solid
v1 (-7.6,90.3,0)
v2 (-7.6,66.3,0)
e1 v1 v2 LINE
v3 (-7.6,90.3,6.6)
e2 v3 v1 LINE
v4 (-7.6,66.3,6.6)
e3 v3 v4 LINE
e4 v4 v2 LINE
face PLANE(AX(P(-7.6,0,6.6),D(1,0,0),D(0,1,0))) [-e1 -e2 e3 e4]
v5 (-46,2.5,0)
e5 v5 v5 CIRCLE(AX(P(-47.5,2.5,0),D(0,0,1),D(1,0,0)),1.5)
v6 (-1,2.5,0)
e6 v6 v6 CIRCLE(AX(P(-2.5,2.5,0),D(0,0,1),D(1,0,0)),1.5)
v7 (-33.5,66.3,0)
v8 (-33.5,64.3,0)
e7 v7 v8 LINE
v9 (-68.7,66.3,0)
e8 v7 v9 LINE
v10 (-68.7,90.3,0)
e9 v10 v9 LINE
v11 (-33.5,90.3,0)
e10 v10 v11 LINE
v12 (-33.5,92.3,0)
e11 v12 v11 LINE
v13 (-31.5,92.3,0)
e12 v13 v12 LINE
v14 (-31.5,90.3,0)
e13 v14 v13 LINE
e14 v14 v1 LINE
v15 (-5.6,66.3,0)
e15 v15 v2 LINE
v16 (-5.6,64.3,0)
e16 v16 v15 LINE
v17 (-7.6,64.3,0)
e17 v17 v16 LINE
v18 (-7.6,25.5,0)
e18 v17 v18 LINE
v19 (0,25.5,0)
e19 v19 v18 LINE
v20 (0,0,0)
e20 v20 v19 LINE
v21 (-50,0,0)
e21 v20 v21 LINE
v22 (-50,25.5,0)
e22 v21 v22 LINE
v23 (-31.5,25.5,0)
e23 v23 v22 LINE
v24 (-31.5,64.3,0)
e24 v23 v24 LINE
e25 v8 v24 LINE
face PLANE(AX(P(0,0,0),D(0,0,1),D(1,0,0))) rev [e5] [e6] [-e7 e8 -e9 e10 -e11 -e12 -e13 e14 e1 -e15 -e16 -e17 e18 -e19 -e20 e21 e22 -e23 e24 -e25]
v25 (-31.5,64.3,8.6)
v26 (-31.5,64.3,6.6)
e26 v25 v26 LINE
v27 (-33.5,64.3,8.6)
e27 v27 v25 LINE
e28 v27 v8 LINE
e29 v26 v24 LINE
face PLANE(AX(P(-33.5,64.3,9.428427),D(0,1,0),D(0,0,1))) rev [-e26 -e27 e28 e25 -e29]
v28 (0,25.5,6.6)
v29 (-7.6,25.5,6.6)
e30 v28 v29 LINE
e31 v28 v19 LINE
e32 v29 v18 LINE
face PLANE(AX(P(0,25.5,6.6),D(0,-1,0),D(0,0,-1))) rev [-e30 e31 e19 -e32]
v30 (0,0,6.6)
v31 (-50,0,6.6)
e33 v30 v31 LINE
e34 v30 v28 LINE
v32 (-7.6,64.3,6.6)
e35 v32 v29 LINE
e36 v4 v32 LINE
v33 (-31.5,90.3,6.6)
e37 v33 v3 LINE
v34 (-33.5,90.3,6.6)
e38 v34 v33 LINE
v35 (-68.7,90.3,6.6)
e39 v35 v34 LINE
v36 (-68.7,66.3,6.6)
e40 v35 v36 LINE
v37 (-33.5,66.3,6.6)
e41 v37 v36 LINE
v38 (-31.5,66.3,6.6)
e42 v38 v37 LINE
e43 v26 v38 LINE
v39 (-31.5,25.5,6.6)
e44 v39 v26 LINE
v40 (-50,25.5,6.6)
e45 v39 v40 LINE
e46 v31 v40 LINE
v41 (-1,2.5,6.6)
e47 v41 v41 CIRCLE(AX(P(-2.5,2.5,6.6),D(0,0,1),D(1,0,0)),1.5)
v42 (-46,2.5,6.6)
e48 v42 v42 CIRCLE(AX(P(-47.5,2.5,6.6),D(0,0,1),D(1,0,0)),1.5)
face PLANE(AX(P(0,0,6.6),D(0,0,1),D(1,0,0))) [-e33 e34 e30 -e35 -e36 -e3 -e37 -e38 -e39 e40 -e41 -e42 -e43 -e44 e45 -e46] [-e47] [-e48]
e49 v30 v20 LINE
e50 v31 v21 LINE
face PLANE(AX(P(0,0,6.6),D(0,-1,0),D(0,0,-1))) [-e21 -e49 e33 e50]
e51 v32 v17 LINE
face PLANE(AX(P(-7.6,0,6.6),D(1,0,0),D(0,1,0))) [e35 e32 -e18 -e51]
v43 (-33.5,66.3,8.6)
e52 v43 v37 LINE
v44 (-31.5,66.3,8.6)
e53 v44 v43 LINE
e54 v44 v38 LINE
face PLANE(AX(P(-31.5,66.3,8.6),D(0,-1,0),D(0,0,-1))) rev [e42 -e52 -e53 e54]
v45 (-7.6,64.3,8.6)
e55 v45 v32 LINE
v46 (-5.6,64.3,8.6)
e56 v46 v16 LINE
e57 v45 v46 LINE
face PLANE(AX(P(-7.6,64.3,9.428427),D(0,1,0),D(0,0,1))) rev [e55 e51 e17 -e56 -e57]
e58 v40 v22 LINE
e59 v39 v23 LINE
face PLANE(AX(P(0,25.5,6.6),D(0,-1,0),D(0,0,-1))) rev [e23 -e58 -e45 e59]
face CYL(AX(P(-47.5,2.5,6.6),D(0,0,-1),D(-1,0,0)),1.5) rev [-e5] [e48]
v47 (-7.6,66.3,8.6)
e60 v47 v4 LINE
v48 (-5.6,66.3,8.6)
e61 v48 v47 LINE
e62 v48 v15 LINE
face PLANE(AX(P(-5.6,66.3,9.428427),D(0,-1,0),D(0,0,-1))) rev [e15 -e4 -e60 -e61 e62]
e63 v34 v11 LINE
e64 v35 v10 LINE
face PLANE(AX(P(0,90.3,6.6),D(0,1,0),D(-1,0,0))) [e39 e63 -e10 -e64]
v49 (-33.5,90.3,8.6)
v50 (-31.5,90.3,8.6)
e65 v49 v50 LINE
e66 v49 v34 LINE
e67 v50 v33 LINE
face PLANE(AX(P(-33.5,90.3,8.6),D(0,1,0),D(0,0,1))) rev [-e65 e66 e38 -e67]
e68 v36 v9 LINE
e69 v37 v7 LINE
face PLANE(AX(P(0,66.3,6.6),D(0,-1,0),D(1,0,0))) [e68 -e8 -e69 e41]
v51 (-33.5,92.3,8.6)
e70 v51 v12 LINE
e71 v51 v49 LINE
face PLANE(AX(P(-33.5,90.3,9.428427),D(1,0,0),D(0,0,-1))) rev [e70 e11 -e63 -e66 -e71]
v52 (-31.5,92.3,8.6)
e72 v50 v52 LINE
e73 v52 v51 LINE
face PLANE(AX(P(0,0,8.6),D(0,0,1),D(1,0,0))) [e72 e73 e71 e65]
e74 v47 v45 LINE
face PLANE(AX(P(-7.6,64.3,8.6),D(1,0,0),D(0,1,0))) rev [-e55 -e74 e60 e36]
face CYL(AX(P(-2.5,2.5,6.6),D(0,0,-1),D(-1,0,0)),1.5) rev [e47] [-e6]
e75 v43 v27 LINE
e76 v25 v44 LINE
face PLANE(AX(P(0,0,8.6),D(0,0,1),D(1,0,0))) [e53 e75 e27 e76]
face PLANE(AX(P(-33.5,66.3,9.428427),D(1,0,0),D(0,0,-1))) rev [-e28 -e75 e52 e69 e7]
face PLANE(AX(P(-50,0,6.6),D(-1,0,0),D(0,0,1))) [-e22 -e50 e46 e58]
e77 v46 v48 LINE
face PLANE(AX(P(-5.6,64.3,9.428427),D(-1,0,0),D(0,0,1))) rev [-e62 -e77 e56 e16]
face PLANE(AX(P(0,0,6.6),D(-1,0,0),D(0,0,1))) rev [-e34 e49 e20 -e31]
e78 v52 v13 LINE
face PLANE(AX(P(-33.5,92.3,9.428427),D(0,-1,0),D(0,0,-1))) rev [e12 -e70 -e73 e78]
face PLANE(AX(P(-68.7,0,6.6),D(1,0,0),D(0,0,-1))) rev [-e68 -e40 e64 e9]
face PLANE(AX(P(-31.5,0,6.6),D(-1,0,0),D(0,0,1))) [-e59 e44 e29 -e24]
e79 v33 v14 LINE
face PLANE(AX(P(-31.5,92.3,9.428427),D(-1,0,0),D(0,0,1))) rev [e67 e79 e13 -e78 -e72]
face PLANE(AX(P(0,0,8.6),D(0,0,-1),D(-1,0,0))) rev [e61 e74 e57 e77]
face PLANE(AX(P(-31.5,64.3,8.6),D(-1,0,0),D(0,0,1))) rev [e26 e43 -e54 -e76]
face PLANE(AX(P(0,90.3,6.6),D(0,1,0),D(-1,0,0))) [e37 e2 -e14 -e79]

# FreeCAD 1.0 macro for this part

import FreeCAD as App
import Part
import Sketcher

V = App.Vector
Q = App.Units.Quantity


def add_polygon(sketch, points):
    """Adds a closed chain of lines whose ends are joined by coincident constraints."""
    first, n = sketch.GeometryCount, len(points)
    for a, b in zip(points, points[1:] + points[:1]):
        sketch.addGeometry(Part.LineSegment(App.Vector(*a, 0), App.Vector(*b, 0)), False)
    for i in range(n):
        sketch.addConstraint(Sketcher.Constraint("Coincident", first + i, 2, first + (i + 1) % n, 1))

doc = App.newDocument("Part")
body = doc.addObject("PartDesign::Body", "Body")

# Sketch on XY plane
sketch1 = doc.addObject("Sketcher::SketchObject", "Sketch")
body.addObject(sketch1)
sketch1.AttachmentSupport = (doc.XY_Plane, [""])
sketch1.MapMode = "FlatFace"
add_polygon(sketch1, [(-50, 0), (0, 0), (0, 25.5), (-7.6, 25.5), (-7.6, 90.3), (-68.7, 90.3), (-68.7, 66.3), (-31.5, 66.3), (-31.5, 25.5), (-50, 25.5)])  # lines 0-9
sketch1.addGeometry(Part.Circle(V(-2.5, 2.5, 0), V(0, 0, 1), 1.5), False)  # 10
sketch1.addGeometry(Part.Circle(V(-47.5, 2.5, 0), V(0, 0, 1), 1.5), False)  # 11
sketch1.addConstraint(Sketcher.Constraint("Horizontal", 0))
sketch1.addConstraint(Sketcher.Constraint("Vertical", 1))
sketch1.addConstraint(Sketcher.Constraint("Horizontal", 2))
sketch1.addConstraint(Sketcher.Constraint("Vertical", 3))
sketch1.addConstraint(Sketcher.Constraint("Horizontal", 4))
sketch1.addConstraint(Sketcher.Constraint("Vertical", 5))
sketch1.addConstraint(Sketcher.Constraint("Horizontal", 6))
sketch1.addConstraint(Sketcher.Constraint("Vertical", 7))
sketch1.addConstraint(Sketcher.Constraint("Horizontal", 8))
sketch1.addConstraint(Sketcher.Constraint("Vertical", 9))
sketch1.addConstraint(Sketcher.Constraint("Coincident", 0, 2, -1, 1))
sketch1.addConstraint(Sketcher.Constraint("Equal", 10, 11))
sketch1.addConstraint(Sketcher.Constraint("Horizontal", 10, 3, 11, 3))
sketch1.addConstraint(Sketcher.Constraint("Horizontal", 2, 2, 7, 2))
sketch1.addConstraint(Sketcher.Constraint("Diameter", 10, Q("3 mm")))
sketch1.addConstraint(Sketcher.Constraint("DistanceX", 0, 1, 0, 2, Q("50 mm")))
sketch1.addConstraint(Sketcher.Constraint("DistanceY", 5, 2, 5, 1, Q("24 mm")))
sketch1.addConstraint(Sketcher.Constraint("DistanceX", 2, 2, 2, 1, Q("7.6 mm")))
sketch1.addConstraint(Sketcher.Constraint("DistanceX", 4, 2, 4, 1, Q("61.1 mm")))
sketch1.addConstraint(Sketcher.Constraint("DistanceX", 6, 1, 6, 2, Q("37.2 mm")))
sketch1.addConstraint(Sketcher.Constraint("DistanceY", 1, 1, 1, 2, Q("25.5 mm")))
sketch1.addConstraint(Sketcher.Constraint("DistanceY", 3, 1, 3, 2, Q("64.8 mm")))
sketch1.addConstraint(Sketcher.Constraint("DistanceX", 11, 3, 10, 3, Q("45 mm")))
sketch1.addConstraint(Sketcher.Constraint("DistanceY", 10, 3, 1, 2, Q("23 mm")))
sketch1.addConstraint(Sketcher.Constraint("DistanceX", 11, 3, 7, 2, Q("16 mm")))
pad1 = doc.addObject("PartDesign::Pad", "Pad")
body.addObject(pad1)
pad1.Profile = sketch1
pad1.Length = 6.6

# Sketch on XY plane
sketch2 = doc.addObject("Sketcher::SketchObject", "Sketch001")
body.addObject(sketch2)
sketch2.AttachmentSupport = (doc.XY_Plane, [""])
sketch2.MapMode = "FlatFace"
add_polygon(sketch2, [(-33.5, 64.3), (-31.5, 64.3), (-31.5, 66.3), (-33.5, 66.3)])  # lines 0-3
add_polygon(sketch2, [(-33.5, 90.3), (-31.5, 90.3), (-31.5, 92.3), (-33.5, 92.3)])  # lines 4-7
add_polygon(sketch2, [(-7.6, 64.3), (-5.6, 64.3), (-5.6, 66.3), (-7.6, 66.3)])  # lines 8-11
sketch2.addConstraint(Sketcher.Constraint("Horizontal", 0))
sketch2.addConstraint(Sketcher.Constraint("Vertical", 1))
sketch2.addConstraint(Sketcher.Constraint("Horizontal", 2))
sketch2.addConstraint(Sketcher.Constraint("Vertical", 3))
sketch2.addConstraint(Sketcher.Constraint("Horizontal", 4))
sketch2.addConstraint(Sketcher.Constraint("Vertical", 5))
sketch2.addConstraint(Sketcher.Constraint("Horizontal", 6))
sketch2.addConstraint(Sketcher.Constraint("Vertical", 7))
sketch2.addConstraint(Sketcher.Constraint("Horizontal", 8))
sketch2.addConstraint(Sketcher.Constraint("Vertical", 9))
sketch2.addConstraint(Sketcher.Constraint("Horizontal", 10))
sketch2.addConstraint(Sketcher.Constraint("Vertical", 11))
sketch2.addConstraint(Sketcher.Constraint("Horizontal", 3, 2, 8, 2))
sketch2.addConstraint(Sketcher.Constraint("Horizontal", 2, 2, 9, 2))
sketch2.addConstraint(Sketcher.Constraint("Vertical", 1, 2, 4, 2))
sketch2.addConstraint(Sketcher.Constraint("Vertical", 3, 2, 6, 2))
sketch2.addConstraint(Sketcher.Constraint("Equal", 6, 8))
sketch2.addConstraint(Sketcher.Constraint("Equal", 10, 1))
sketch2.addConstraint(Sketcher.Constraint("Equal", 3, 5))
sketch2.addConstraint(Sketcher.Constraint("DistanceX", 0, 1, 0, 2, Q("2 mm")))
sketch2.addConstraint(Sketcher.Constraint("DistanceY", 1, 2, 4, 2, Q("24 mm")))
sketch2.addConstraint(Sketcher.Constraint("DistanceX", 0, 2, -1, 1, Q("31.5 mm")))
sketch2.addConstraint(Sketcher.Constraint("DistanceY", -1, 1, 0, 2, Q("64.3 mm")))
sketch2.addConstraint(Sketcher.Constraint("DistanceX", 8, 2, -1, 1, Q("5.6 mm")))
pad2 = doc.addObject("PartDesign::Pad", "Pad001")
body.addObject(pad2)
pad2.Profile = sketch2
pad2.Length = 6.6

# Sketch on XY plane
sketch3 = doc.addObject("Sketcher::SketchObject", "Sketch002")
body.addObject(sketch3)
sketch3.AttachmentSupport = (doc.XY_Plane, [""])
sketch3.MapMode = "FlatFace"
sketch3.AttachmentOffset = App.Placement(V(0, 0, 6.6), App.Rotation())
add_polygon(sketch3, [(-33.5, 92.3), (-33.5, 90.3), (-31.5, 90.3), (-31.5, 92.3)])  # lines 0-3
add_polygon(sketch3, [(-33.5, 66.3), (-33.5, 64.3), (-31.5, 64.3), (-31.5, 66.3)])  # lines 4-7
add_polygon(sketch3, [(-7.6, 66.3), (-7.6, 64.3), (-5.6, 64.3), (-5.6, 66.3)])  # lines 8-11
sketch3.addConstraint(Sketcher.Constraint("Vertical", 0))
sketch3.addConstraint(Sketcher.Constraint("Horizontal", 1))
sketch3.addConstraint(Sketcher.Constraint("Vertical", 2))
sketch3.addConstraint(Sketcher.Constraint("Horizontal", 3))
sketch3.addConstraint(Sketcher.Constraint("Vertical", 4))
sketch3.addConstraint(Sketcher.Constraint("Horizontal", 5))
sketch3.addConstraint(Sketcher.Constraint("Vertical", 6))
sketch3.addConstraint(Sketcher.Constraint("Horizontal", 7))
sketch3.addConstraint(Sketcher.Constraint("Vertical", 8))
sketch3.addConstraint(Sketcher.Constraint("Horizontal", 9))
sketch3.addConstraint(Sketcher.Constraint("Vertical", 10))
sketch3.addConstraint(Sketcher.Constraint("Horizontal", 11))
sketch3.addConstraint(Sketcher.Constraint("Horizontal", 5, 2, 8, 2))
sketch3.addConstraint(Sketcher.Constraint("Horizontal", 7, 2, 10, 2))
sketch3.addConstraint(Sketcher.Constraint("Vertical", 3, 2, 4, 2))
sketch3.addConstraint(Sketcher.Constraint("Vertical", 2, 2, 5, 2))
sketch3.addConstraint(Sketcher.Constraint("Equal", 7, 9))
sketch3.addConstraint(Sketcher.Constraint("Equal", 11, 0))
sketch3.addConstraint(Sketcher.Constraint("Equal", 2, 4))
sketch3.addConstraint(Sketcher.Constraint("DistanceX", 1, 1, 1, 2, Q("2 mm")))
sketch3.addConstraint(Sketcher.Constraint("DistanceY", 4, 2, 0, 2, Q("26 mm")))
sketch3.addConstraint(Sketcher.Constraint("DistanceX", 0, 2, -1, 1, Q("33.5 mm")))
sketch3.addConstraint(Sketcher.Constraint("DistanceY", -1, 1, 0, 2, Q("90.3 mm")))
sketch3.addConstraint(Sketcher.Constraint("DistanceX", 8, 2, -1, 1, Q("7.6 mm")))
pad3 = doc.addObject("PartDesign::Pad", "Pad002")
body.addObject(pad3)
pad3.Profile = sketch3
pad3.Length = 2

doc.recompute()
